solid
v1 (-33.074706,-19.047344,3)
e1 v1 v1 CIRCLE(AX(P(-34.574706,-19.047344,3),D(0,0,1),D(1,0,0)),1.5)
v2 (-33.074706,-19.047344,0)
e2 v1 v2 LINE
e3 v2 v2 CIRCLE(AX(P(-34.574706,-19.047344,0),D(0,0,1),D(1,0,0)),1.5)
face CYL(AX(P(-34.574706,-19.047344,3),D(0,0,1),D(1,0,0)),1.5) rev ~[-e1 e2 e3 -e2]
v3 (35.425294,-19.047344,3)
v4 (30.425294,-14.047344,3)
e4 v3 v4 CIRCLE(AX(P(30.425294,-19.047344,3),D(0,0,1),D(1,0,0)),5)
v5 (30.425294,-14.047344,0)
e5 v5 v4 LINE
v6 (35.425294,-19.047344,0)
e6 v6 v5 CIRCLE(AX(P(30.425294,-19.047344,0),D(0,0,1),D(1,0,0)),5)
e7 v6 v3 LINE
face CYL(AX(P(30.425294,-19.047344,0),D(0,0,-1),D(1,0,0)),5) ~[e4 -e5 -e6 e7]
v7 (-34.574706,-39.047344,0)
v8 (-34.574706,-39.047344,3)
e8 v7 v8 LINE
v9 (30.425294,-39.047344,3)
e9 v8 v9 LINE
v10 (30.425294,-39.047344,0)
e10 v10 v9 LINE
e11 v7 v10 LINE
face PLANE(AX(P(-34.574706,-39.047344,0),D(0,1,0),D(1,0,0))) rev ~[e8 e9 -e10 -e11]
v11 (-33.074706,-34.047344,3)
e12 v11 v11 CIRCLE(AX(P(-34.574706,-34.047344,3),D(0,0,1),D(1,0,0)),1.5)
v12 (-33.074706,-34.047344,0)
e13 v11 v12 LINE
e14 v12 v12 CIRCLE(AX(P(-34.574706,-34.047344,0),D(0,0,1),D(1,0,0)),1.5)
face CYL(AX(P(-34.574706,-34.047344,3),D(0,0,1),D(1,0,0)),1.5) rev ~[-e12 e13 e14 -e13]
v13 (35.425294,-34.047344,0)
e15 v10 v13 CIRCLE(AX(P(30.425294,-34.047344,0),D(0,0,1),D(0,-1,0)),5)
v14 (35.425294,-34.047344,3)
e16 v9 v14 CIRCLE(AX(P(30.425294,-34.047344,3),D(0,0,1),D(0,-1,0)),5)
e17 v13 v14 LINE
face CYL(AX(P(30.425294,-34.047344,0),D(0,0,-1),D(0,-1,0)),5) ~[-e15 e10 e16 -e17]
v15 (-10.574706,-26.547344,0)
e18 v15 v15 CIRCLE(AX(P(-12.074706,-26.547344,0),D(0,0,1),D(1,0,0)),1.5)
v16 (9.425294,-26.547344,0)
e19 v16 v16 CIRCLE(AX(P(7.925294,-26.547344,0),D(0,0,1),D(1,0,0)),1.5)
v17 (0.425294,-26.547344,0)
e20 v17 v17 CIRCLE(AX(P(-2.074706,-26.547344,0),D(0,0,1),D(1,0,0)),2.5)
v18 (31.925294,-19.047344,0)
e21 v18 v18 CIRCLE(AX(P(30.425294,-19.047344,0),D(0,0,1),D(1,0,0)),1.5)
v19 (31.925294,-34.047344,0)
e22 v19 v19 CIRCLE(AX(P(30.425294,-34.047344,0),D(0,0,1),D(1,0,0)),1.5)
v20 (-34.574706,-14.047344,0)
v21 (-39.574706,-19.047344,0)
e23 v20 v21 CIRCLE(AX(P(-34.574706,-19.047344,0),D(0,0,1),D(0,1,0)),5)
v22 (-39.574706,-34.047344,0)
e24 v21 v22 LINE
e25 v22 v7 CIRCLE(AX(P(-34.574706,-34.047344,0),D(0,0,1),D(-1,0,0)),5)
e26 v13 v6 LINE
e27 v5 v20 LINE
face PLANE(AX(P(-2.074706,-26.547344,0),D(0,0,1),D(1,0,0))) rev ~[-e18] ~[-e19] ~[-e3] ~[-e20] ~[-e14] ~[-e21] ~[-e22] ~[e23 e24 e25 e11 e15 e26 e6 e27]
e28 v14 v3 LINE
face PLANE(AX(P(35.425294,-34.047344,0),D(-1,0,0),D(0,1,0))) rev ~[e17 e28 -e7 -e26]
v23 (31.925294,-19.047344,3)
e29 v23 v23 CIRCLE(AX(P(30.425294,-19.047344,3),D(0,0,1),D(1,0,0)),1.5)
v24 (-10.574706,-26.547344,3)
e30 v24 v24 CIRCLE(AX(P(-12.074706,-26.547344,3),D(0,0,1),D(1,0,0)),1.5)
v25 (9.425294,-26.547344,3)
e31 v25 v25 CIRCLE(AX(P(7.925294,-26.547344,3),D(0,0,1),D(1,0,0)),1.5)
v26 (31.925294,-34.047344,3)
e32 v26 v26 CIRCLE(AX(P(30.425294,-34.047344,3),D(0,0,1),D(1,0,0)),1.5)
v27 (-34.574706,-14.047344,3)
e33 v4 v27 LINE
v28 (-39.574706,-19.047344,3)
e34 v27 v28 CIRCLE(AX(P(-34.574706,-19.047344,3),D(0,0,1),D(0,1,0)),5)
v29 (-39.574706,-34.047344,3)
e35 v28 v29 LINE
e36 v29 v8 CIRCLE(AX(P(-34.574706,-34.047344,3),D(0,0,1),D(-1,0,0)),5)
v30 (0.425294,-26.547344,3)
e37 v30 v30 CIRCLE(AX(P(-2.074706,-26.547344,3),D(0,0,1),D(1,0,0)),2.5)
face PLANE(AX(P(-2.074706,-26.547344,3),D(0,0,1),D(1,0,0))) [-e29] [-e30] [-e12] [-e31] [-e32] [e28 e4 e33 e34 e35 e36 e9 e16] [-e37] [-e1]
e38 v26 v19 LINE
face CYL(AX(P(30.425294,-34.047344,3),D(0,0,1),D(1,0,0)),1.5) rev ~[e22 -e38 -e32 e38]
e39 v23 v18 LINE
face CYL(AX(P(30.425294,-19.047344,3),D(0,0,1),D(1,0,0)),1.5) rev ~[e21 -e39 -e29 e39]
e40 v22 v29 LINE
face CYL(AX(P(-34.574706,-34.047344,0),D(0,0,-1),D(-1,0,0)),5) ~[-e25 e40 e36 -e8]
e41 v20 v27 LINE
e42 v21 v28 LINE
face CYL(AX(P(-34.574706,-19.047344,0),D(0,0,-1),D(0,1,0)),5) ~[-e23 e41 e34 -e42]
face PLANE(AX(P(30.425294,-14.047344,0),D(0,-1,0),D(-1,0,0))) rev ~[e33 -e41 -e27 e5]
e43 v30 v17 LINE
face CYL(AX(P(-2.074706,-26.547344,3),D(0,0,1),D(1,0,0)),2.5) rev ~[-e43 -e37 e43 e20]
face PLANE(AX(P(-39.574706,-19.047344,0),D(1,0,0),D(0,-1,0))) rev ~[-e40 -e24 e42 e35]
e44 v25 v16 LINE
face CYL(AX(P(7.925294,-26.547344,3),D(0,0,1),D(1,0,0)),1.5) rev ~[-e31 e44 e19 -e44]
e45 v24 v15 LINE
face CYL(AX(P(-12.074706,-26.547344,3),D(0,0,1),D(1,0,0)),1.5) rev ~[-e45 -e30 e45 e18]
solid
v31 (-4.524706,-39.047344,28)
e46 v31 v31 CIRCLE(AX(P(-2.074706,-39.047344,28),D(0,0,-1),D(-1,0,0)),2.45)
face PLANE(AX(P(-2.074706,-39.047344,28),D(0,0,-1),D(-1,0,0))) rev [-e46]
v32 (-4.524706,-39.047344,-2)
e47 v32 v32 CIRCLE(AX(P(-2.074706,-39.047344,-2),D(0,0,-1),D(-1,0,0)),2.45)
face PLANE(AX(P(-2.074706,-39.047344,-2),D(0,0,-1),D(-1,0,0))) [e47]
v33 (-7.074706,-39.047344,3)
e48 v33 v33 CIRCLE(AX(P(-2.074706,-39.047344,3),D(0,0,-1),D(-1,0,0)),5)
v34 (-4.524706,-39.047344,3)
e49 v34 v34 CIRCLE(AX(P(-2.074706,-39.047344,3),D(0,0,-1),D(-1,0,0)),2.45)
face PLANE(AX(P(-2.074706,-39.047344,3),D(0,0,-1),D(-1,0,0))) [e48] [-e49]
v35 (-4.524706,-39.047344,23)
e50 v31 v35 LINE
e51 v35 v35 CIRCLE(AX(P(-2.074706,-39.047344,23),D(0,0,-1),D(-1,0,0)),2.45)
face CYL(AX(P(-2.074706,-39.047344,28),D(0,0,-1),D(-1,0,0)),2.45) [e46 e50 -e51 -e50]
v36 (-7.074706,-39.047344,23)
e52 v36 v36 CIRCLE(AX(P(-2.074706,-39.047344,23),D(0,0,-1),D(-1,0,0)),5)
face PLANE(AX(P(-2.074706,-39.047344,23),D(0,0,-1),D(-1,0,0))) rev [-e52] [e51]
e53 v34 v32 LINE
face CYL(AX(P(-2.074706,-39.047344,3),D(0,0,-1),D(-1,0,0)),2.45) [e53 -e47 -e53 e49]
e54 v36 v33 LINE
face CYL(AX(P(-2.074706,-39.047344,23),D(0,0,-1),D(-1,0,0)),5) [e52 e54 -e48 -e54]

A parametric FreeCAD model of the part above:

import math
import FreeCAD as App
import Part
import Sketcher
Q = App.Units.Quantity

doc = App.newDocument("Part")
params = doc.addObject("Spreadsheet::Sheet", "Params")
for row, (alias, value) in enumerate([
    ("sketch1_radius", "5 mm"),
    ("sketch1_width", "65 mm"),
    ("sketch1_height", "15 mm"),
    ("pad1_length", "3 mm"),
    ("sketch2_diameter", "3 mm"),
    ("sketch2_diameter2", "5 mm"),
    ("sketch3_height", "5 mm"),
    ("sketch3_height2", "20 mm"),
    ("sketch3_width", "2.45 mm"),
    ("revolution_angle", "360 deg"),
], start=1):
    params.set(f"A{row}", alias)
    params.set(f"B{row}", "=" + value)
    params.setAlias(f"B{row}", alias)

body = doc.addObject("PartDesign::Body", "Body")

sketch1 = body.newObject("Sketcher::SketchObject", "Sketch")
sketch1.AttachmentSupport = (doc.getObject("XY_Plane"), [""])
sketch1.MapMode = "FlatFace"
sketch1.addGeometry(Part.ArcOfCircle(Part.Circle(App.Vector(-34.574706, -34.047344, 0), App.Vector(0, 0, 1), 5), math.radians(180), math.radians(270)), False)
sketch1.addGeometry(Part.LineSegment(App.Vector(-34.574706, -39.047344, 0), App.Vector(30.425294, -39.047344, 0)), False)
sketch1.addGeometry(Part.ArcOfCircle(Part.Circle(App.Vector(30.425294, -34.047344, 0), App.Vector(0, 0, 1), 5), math.radians(-90), math.radians(0)), False)
sketch1.addGeometry(Part.LineSegment(App.Vector(35.425294, -34.047344, 0), App.Vector(35.425294, -19.047344, 0)), False)
sketch1.addGeometry(Part.ArcOfCircle(Part.Circle(App.Vector(30.425294, -19.047344, 0), App.Vector(0, 0, 1), 5), math.radians(0), math.radians(90)), False)
sketch1.addGeometry(Part.LineSegment(App.Vector(30.425294, -14.047344, 0), App.Vector(-34.574706, -14.047344, 0)), False)
sketch1.addGeometry(Part.ArcOfCircle(Part.Circle(App.Vector(-34.574706, -19.047344, 0), App.Vector(0, 0, 1), 5), math.radians(90), math.radians(180)), False)
sketch1.addGeometry(Part.LineSegment(App.Vector(-39.574706, -19.047344, 0), App.Vector(-39.574706, -34.047344, 0)), False)
sketch1.addConstraint(Sketcher.Constraint("Tangent", 0, 2, 1, 1))
sketch1.addConstraint(Sketcher.Constraint("Tangent", 1, 2, 2, 1))
sketch1.addConstraint(Sketcher.Constraint("Tangent", 2, 2, 3, 1))
sketch1.addConstraint(Sketcher.Constraint("Tangent", 3, 2, 4, 1))
sketch1.addConstraint(Sketcher.Constraint("Tangent", 4, 2, 5, 1))
sketch1.addConstraint(Sketcher.Constraint("Tangent", 5, 2, 6, 1))
sketch1.addConstraint(Sketcher.Constraint("Tangent", 6, 2, 7, 1))
sketch1.addConstraint(Sketcher.Constraint("Tangent", 7, 2, 0, 1))
sketch1.addConstraint(Sketcher.Constraint("Horizontal", 1))
sketch1.addConstraint(Sketcher.Constraint("Vertical", 3))
sketch1.addConstraint(Sketcher.Constraint("Horizontal", 5))
sketch1.addConstraint(Sketcher.Constraint("Vertical", 7))
sketch1.addConstraint(Sketcher.Constraint("Equal", 0, 2))
sketch1.addConstraint(Sketcher.Constraint("Equal", 2, 4))
sketch1.addConstraint(Sketcher.Constraint("Equal", 4, 6))
sketch1.addConstraint(Sketcher.Constraint("Radius", 0, Q("5 mm")))
sketch1.addConstraint(Sketcher.Constraint("DistanceX", 1, 1, 1, 2, Q("65 mm")))
sketch1.addConstraint(Sketcher.Constraint("DistanceY", 3, 1, 3, 2, Q("15 mm")))
sketch1.addConstraint(Sketcher.Constraint("DistanceX", 0, 3, -1, 1, Q("34.574706 mm")))
sketch1.addConstraint(Sketcher.Constraint("DistanceY", 0, 3, -1, 1, Q("34.047344 mm")))
sketch1.setExpression("Constraints[15]", "Params.sketch1_radius")
sketch1.setExpression("Constraints[16]", "Params.sketch1_width")
sketch1.setExpression("Constraints[17]", "Params.sketch1_height")
pad1 = body.newObject("PartDesign::Pad", "Pad")
pad1.Profile = sketch1
pad1.setExpression("Length", "Params.pad1_length")

sketch2 = body.newObject("Sketcher::SketchObject", "Sketch001")
sketch2.AttachmentSupport = (doc.getObject("XY_Plane"), [""])
sketch2.MapMode = "FlatFace"
sketch2.AttachmentOffset = App.Placement(App.Vector(0, 0, 3), App.Rotation())
sketch2.addGeometry(Part.Circle(App.Vector(-34.574706, -19.047344, 0), App.Vector(0, 0, 1), 1.5), False)
sketch2.addGeometry(Part.Circle(App.Vector(-34.574706, -34.047344, 0), App.Vector(0, 0, 1), 1.5), False)
sketch2.addGeometry(Part.Circle(App.Vector(30.425294, -19.047344, 0), App.Vector(0, 0, 1), 1.5), False)
sketch2.addGeometry(Part.Circle(App.Vector(30.425294, -34.047344, 0), App.Vector(0, 0, 1), 1.5), False)
sketch2.addGeometry(Part.Circle(App.Vector(-2.074706, -26.547344, 0), App.Vector(0, 0, 1), 2.5), False)
sketch2.addGeometry(Part.Circle(App.Vector(-12.074706, -26.547344, 0), App.Vector(0, 0, 1), 1.5), False)
sketch2.addGeometry(Part.Circle(App.Vector(7.925294, -26.547344, 0), App.Vector(0, 0, 1), 1.5), False)
sketch2.addConstraint(Sketcher.Constraint("Equal", 0, 1))
sketch2.addConstraint(Sketcher.Constraint("Equal", 1, 2))
sketch2.addConstraint(Sketcher.Constraint("Equal", 2, 3))
sketch2.addConstraint(Sketcher.Constraint("Equal", 3, 5))
sketch2.addConstraint(Sketcher.Constraint("Equal", 5, 6))
sketch2.addConstraint(Sketcher.Constraint("Horizontal", 0, 3, 2, 3))
sketch2.addConstraint(Sketcher.Constraint("Horizontal", 1, 3, 3, 3))
sketch2.addConstraint(Sketcher.Constraint("Horizontal", 4, 3, 5, 3))
sketch2.addConstraint(Sketcher.Constraint("Horizontal", 5, 3, 6, 3))
sketch2.addConstraint(Sketcher.Constraint("Vertical", 0, 3, 1, 3))
sketch2.addConstraint(Sketcher.Constraint("Vertical", 2, 3, 3, 3))
sketch2.addConstraint(Sketcher.Constraint("Diameter", 0, Q("3 mm")))
sketch2.addConstraint(Sketcher.Constraint("Diameter", 4, Q("5 mm")))
sketch2.addConstraint(Sketcher.Constraint("DistanceY", 1, 3, 0, 3, Q("15 mm")))
sketch2.addConstraint(Sketcher.Constraint("DistanceX", 0, 3, 2, 3, Q("65 mm")))
sketch2.addConstraint(Sketcher.Constraint("DistanceX", 5, 3, 4, 3, Q("10 mm")))
sketch2.addConstraint(Sketcher.Constraint("DistanceX", 4, 3, 6, 3, Q("10 mm")))
sketch2.addConstraint(Sketcher.Constraint("DistanceX", 0, 3, 4, 3, Q("32.5 mm")))
sketch2.addConstraint(Sketcher.Constraint("DistanceY", 4, 3, 0, 3, Q("7.5 mm")))
sketch2.addConstraint(Sketcher.Constraint("DistanceX", 0, 3, -1, 1, Q("34.574706 mm")))
sketch2.addConstraint(Sketcher.Constraint("DistanceY", 0, 3, -1, 1, Q("19.047344 mm")))
sketch2.setExpression("Constraints[11]", "Params.sketch2_diameter")
sketch2.setExpression("Constraints[12]", "Params.sketch2_diameter2")
pocket1 = body.newObject("PartDesign::Pocket", "Pocket")
pocket1.Profile = sketch2
pocket1.Type = "ThroughAll"
body2 = doc.addObject("PartDesign::Body", "Body001")

sketch3 = body2.newObject("Sketcher::SketchObject", "Sketch002")
sketch3.AttachmentSupport = (doc.getObject("XZ_Plane001"), [""])
sketch3.MapMode = "FlatFace"
sketch3.AttachmentOffset = App.Placement(App.Vector(0, 0, 39.047344), App.Rotation())
sketch3.addGeometry(Part.LineSegment(App.Vector(-2.074706, 28, 0), App.Vector(-4.524706, 28, 0)), False)
sketch3.addGeometry(Part.LineSegment(App.Vector(-4.524706, 28, 0), App.Vector(-4.524706, 23, 0)), False)
sketch3.addGeometry(Part.LineSegment(App.Vector(-4.524706, 23, 0), App.Vector(-7.074706, 23, 0)), False)
sketch3.addGeometry(Part.LineSegment(App.Vector(-7.074706, 23, 0), App.Vector(-7.074706, 3, 0)), False)
sketch3.addGeometry(Part.LineSegment(App.Vector(-7.074706, 3, 0), App.Vector(-4.524706, 3, 0)), False)
sketch3.addGeometry(Part.LineSegment(App.Vector(-4.524706, 3, 0), App.Vector(-4.524706, -2, 0)), False)
sketch3.addGeometry(Part.LineSegment(App.Vector(-4.524706, -2, 0), App.Vector(-2.074706, -2, 0)), False)
sketch3.addGeometry(Part.LineSegment(App.Vector(-2.074706, -2, 0), App.Vector(-2.074706, 28, 0)), False)
sketch3.addGeometry(Part.LineSegment(App.Vector(-2.074706, 28, 0), App.Vector(-2.074706, -2, 0)), True)
sketch3.addConstraint(Sketcher.Constraint("Coincident", 0, 2, 1, 1))
sketch3.addConstraint(Sketcher.Constraint("Coincident", 1, 2, 2, 1))
sketch3.addConstraint(Sketcher.Constraint("Coincident", 2, 2, 3, 1))
sketch3.addConstraint(Sketcher.Constraint("Coincident", 3, 2, 4, 1))
sketch3.addConstraint(Sketcher.Constraint("Coincident", 4, 2, 5, 1))
sketch3.addConstraint(Sketcher.Constraint("Coincident", 5, 2, 6, 1))
sketch3.addConstraint(Sketcher.Constraint("Coincident", 6, 2, 7, 1))
sketch3.addConstraint(Sketcher.Constraint("Coincident", 7, 2, 0, 1))
sketch3.addConstraint(Sketcher.Constraint("Horizontal", 0))
sketch3.addConstraint(Sketcher.Constraint("Vertical", 1))
sketch3.addConstraint(Sketcher.Constraint("Horizontal", 2))
sketch3.addConstraint(Sketcher.Constraint("Vertical", 3))
sketch3.addConstraint(Sketcher.Constraint("Horizontal", 4))
sketch3.addConstraint(Sketcher.Constraint("Vertical", 5))
sketch3.addConstraint(Sketcher.Constraint("Horizontal", 6))
sketch3.addConstraint(Sketcher.Constraint("Vertical", 7))
sketch3.addConstraint(Sketcher.Constraint("Vertical", 8))
sketch3.addConstraint(Sketcher.Constraint("Coincident", 8, 1, 7, 2))
sketch3.addConstraint(Sketcher.Constraint("Horizontal", 5, 2, 8, 2))
sketch3.addConstraint(Sketcher.Constraint("Vertical", 1, 2, 4, 2))
sketch3.addConstraint(Sketcher.Constraint("Equal", 1, 5))
sketch3.addConstraint(Sketcher.Constraint("DistanceY", 1, 2, 1, 1, Q("5 mm")))
sketch3.addConstraint(Sketcher.Constraint("DistanceY", 3, 2, 3, 1, Q("20 mm")))
sketch3.addConstraint(Sketcher.Constraint("DistanceY", -1, 1, 0, 2, Q("28 mm")))
sketch3.addConstraint(Sketcher.Constraint("DistanceX", 3, 2, 6, 2, Q("5 mm")))
sketch3.addConstraint(Sketcher.Constraint("DistanceX", 0, 2, 0, 1, Q("2.45 mm")))
sketch3.addConstraint(Sketcher.Constraint("DistanceX", 0, 2, -1, 1, Q("4.524706 mm")))
sketch3.setExpression("Constraints[21]", "Params.sketch3_height")
sketch3.setExpression("Constraints[22]", "Params.sketch3_height2")
sketch3.setExpression("Constraints[25]", "Params.sketch3_width")
revolution = body2.newObject("PartDesign::Revolution", "Revolution")
revolution.Profile = sketch3
revolution.ReferenceAxis = (sketch3, ["Axis0"])
revolution.setExpression("Angle", "Params.revolution_angle")

doc.recompute()
